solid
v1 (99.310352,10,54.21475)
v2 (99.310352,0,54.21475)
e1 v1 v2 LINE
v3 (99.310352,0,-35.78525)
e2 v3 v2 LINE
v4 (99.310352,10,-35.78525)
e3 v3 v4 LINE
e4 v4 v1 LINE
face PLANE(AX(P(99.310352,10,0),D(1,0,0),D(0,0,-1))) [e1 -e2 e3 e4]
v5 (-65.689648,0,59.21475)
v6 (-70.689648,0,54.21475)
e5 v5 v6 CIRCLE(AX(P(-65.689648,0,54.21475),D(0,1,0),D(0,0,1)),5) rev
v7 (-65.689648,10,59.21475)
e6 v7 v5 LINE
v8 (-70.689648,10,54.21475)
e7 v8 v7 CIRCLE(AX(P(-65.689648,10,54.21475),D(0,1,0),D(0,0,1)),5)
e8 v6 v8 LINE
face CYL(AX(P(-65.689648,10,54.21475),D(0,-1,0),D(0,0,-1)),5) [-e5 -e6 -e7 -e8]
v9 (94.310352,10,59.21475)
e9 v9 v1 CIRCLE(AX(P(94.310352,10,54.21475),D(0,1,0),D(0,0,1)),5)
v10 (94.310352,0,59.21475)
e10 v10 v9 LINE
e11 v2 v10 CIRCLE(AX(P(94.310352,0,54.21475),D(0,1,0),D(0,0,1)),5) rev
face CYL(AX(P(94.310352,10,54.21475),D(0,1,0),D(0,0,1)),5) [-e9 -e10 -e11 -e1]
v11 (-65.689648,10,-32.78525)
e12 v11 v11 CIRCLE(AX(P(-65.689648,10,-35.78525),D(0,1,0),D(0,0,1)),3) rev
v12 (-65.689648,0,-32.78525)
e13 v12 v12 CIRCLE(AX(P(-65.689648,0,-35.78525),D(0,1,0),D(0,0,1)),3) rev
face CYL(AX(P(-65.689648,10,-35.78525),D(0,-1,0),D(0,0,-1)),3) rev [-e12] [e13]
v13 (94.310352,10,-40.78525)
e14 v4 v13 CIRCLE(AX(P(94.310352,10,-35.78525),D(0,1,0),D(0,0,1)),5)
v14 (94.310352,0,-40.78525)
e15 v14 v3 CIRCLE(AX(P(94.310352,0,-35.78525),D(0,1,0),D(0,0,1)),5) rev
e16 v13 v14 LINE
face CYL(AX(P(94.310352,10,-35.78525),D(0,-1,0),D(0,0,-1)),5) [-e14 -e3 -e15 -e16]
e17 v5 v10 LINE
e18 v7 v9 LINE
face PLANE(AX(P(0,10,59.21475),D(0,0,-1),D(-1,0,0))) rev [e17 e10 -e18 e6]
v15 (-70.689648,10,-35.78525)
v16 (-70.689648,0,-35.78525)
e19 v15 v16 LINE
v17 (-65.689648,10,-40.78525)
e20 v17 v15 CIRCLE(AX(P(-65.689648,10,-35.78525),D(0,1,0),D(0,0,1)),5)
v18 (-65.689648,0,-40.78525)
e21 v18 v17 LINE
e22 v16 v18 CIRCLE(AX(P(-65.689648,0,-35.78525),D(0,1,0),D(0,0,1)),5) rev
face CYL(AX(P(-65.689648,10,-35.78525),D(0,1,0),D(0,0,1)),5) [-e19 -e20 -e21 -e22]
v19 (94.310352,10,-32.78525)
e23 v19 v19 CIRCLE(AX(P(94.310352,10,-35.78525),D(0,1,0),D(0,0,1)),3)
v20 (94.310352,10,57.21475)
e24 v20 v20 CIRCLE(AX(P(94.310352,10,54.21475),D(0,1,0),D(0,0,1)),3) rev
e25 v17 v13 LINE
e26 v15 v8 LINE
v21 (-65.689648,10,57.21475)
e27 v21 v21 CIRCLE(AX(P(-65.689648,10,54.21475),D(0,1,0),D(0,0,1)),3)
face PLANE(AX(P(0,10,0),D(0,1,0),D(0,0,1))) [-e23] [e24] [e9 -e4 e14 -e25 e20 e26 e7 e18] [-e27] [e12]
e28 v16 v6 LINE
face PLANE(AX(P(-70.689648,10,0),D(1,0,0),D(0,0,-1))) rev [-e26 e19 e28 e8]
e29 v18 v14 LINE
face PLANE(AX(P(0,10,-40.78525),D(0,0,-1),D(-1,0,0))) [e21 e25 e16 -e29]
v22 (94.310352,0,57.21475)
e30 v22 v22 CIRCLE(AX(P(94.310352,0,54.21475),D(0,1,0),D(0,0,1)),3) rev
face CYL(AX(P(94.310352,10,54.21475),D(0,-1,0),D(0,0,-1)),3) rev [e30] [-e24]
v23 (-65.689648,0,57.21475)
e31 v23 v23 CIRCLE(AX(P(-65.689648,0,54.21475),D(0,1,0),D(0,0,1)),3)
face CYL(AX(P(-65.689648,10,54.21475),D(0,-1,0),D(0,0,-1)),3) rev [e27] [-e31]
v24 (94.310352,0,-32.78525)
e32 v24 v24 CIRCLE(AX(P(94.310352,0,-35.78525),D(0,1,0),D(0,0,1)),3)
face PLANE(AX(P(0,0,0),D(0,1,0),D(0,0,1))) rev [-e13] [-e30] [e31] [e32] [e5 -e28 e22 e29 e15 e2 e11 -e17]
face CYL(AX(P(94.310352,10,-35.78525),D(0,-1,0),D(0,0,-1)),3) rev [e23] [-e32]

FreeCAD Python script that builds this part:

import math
import FreeCAD as App
import Part
import Sketcher

V = App.Vector


def edges_at(feature, points):
    """Names of the edges that pass closest to the given points."""
    edges = feature.Shape.Edges
    near = lambda p: min(range(len(edges)), key=lambda i: edges[i].distToShape(Part.Vertex(*p))[0])
    return sorted({f"Edge{near(p) + 1}" for p in points})


def add_polygon(sketch, points):
    """Adds a closed chain of lines whose ends are joined by coincident constraints."""
    first, n = sketch.GeometryCount, len(points)
    for a, b in zip(points, points[1:] + points[:1]):
        sketch.addGeometry(Part.LineSegment(App.Vector(*a, 0), App.Vector(*b, 0)), False)
    for i in range(n):
        sketch.addConstraint(Sketcher.Constraint("Coincident", first + i, 2, first + (i + 1) % n, 1))

doc = App.newDocument("Part")
params = doc.addObject("Spreadsheet::Sheet", "Params")
for row, (alias, value) in enumerate([
    ("sketch1_diameter", "6 mm"),
    ("sketch1_width", "170 mm"),
    ("sketch1_height", "100 mm"),
    ("pad1_length", "10 mm"),
    ("fillet_radius", "5 mm"),
    ("fillet2_radius", "5 mm"),
], start=1):
    params.set(f"A{row}", alias)
    params.set(f"B{row}", "=" + value)
    params.setAlias(f"B{row}", alias)

body = doc.addObject("PartDesign::Body", "Body")

# Sketch on XZ plane
sketch1 = body.newObject("Sketcher::SketchObject", "Sketch")
sketch1.AttachmentSupport = (doc.getObject("XZ_Plane"), [""])
sketch1.MapMode = "FlatFace"
add_polygon(sketch1, [(99.3, -40.8), (-70.7, -40.8), (-70.7, 59.2), (99.3, 59.2)])  # lines 0-3
sketch1.addGeometry(Part.ArcOfCircle(Part.Circle(V(-65.7, 54.2, 0), V(0, 0, 1), 3), math.radians(180), math.radians(360)), False)  # 4
sketch1.addGeometry(Part.ArcOfCircle(Part.Circle(V(-65.7, 54.2, 0), V(0, 0, 1), 3), math.radians(0), math.radians(90)), False)  # 5
sketch1.addGeometry(Part.ArcOfCircle(Part.Circle(V(-65.7, 54.2, 0), V(0, 0, 1), 3), math.radians(90), math.radians(180)), False)  # 6
sketch1.addGeometry(Part.Circle(V(94.3, 54.2, 0), V(0, 0, 1), 3), False)  # 7
sketch1.addGeometry(Part.Circle(V(-65.7, -35.8, 0), V(0, 0, 1), 3), False)  # 8
sketch1.addGeometry(Part.Circle(V(94.3, -35.8, 0), V(0, 0, 1), 3), False)  # 9
sketch1.addConstraint([
    Sketcher.Constraint("Tangent", 4, 2, 5, 1),
    Sketcher.Constraint("Tangent", 5, 2, 6, 1),
    Sketcher.Constraint("Tangent", 6, 2, 4, 1),
    Sketcher.Constraint("Horizontal", 0),
    Sketcher.Constraint("Vertical", 1),
    Sketcher.Constraint("Horizontal", 2),
    Sketcher.Constraint("Vertical", 3),
    Sketcher.Constraint("Equal", 6, 7),
    Sketcher.Constraint("Equal", 7, 8),
    Sketcher.Constraint("Equal", 8, 9),
    Sketcher.Constraint("Horizontal", 6, 3, 7, 3),
    Sketcher.Constraint("Horizontal", 8, 3, 9, 3),
    Sketcher.Constraint("Horizontal", 7, 3, 4, 2),
    Sketcher.Constraint("Horizontal", 4, 2, 6, 2),
    Sketcher.Constraint("Vertical", 6, 3, 8, 3),
    Sketcher.Constraint("Vertical", 7, 3, 9, 3),
    Sketcher.Constraint("Vertical", 8, 3, 5, 2),
    Sketcher.Constraint("Diameter", 7, 6.0),
    Sketcher.Constraint("DistanceX", 0, 2, 0, 1, 170.0),
    Sketcher.Constraint("DistanceY", 1, 1, 1, 2, 100.0),
    Sketcher.Constraint("DistanceX", 6, 3, 7, 3, 160.0),
    Sketcher.Constraint("DistanceY", 8, 3, 6, 3, 90.0),
    Sketcher.Constraint("DistanceX", 0, 2, 8, 3, 5.0),
    Sketcher.Constraint("DistanceY", 0, 2, 8, 3, 5.0),
    Sketcher.Constraint("DistanceX", 4, 3, -1, 1, 65.689648),
    Sketcher.Constraint("DistanceY", -1, 1, 4, 3, 54.21475),
])
sketch1.setExpression("Constraints[21]", "Params.sketch1_diameter")
sketch1.setExpression("Constraints[22]", "Params.sketch1_width")
sketch1.setExpression("Constraints[23]", "Params.sketch1_height")
pad1 = body.newObject("PartDesign::Pad", "Pad")
pad1.Profile = sketch1
pad1.setExpression("Length", "Params.pad1_length")
pad1.Reversed = True
doc.recompute()

fillet = body.newObject("PartDesign::Fillet", "Fillet")
fillet.Base = (pad1, edges_at(pad1, [(-70.69, 5, 59.215)]))
fillet.setExpression("Radius", "Params.fillet_radius")
doc.recompute()

fillet2 = body.newObject("PartDesign::Fillet", "Fillet001")
fillet2.Base = (fillet, edges_at(fillet, [(-70.69, 5, -40.785), (99.31, 5, -40.785), (99.31, 5, 59.215)]))
fillet2.setExpression("Radius", "Params.fillet2_radius")

doc.recompute()
